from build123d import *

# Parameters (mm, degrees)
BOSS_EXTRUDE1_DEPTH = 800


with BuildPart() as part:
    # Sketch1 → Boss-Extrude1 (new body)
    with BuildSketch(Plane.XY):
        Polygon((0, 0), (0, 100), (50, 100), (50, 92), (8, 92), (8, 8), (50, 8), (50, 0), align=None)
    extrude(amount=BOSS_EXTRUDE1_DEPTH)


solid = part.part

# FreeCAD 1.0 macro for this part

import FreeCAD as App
import Part
import Sketcher

V = App.Vector

doc = App.newDocument("Part")
params = doc.addObject("Spreadsheet::Sheet", "Params")
for row, (alias, value) in enumerate([
    ("sketch1_width", "50 mm"),
    ("sketch1_width2", "42 mm"),
    ("sketch1_height", "100 mm"),
    ("sketch1_height2", "8 mm"),
    ("pad1_length", "800 mm"),
], start=1):
    params.set(f"A{row}", alias)
    params.set(f"B{row}", "=" + value)
    params.setAlias(f"B{row}", alias)

body = doc.addObject("PartDesign::Body", "Body")

sketch1 = body.newObject("Sketcher::SketchObject", "Sketch")
sketch1.AttachmentSupport = (doc.getObject("XY_Plane"), [""])
sketch1.MapMode = "FlatFace"
sketch1.addGeometry(Part.LineSegment(V(0, 100, 0), V(0, 0, 0)), False)
sketch1.addGeometry(Part.LineSegment(V(0, 0, 0), V(50, 0, 0)), False)
sketch1.addGeometry(Part.LineSegment(V(50, 0, 0), V(50, 8, 0)), False)
sketch1.addGeometry(Part.LineSegment(V(50, 8, 0), V(8, 8, 0)), False)
sketch1.addGeometry(Part.LineSegment(V(8, 8, 0), V(8, 92, 0)), False)
sketch1.addGeometry(Part.LineSegment(V(8, 92, 0), V(50, 92, 0)), False)
sketch1.addGeometry(Part.LineSegment(V(50, 92, 0), V(50, 100, 0)), False)
sketch1.addGeometry(Part.LineSegment(V(50, 100, 0), V(0, 100, 0)), False)
sketch1.addConstraint(Sketcher.Constraint("Coincident", 0, 2, 1, 1))
sketch1.addConstraint(Sketcher.Constraint("Coincident", 1, 2, 2, 1))
sketch1.addConstraint(Sketcher.Constraint("Coincident", 2, 2, 3, 1))
sketch1.addConstraint(Sketcher.Constraint("Coincident", 3, 2, 4, 1))
sketch1.addConstraint(Sketcher.Constraint("Coincident", 4, 2, 5, 1))
sketch1.addConstraint(Sketcher.Constraint("Coincident", 5, 2, 6, 1))
sketch1.addConstraint(Sketcher.Constraint("Coincident", 6, 2, 7, 1))
sketch1.addConstraint(Sketcher.Constraint("Coincident", 7, 2, 0, 1))
sketch1.addConstraint(Sketcher.Constraint("Vertical", 0))
sketch1.addConstraint(Sketcher.Constraint("Horizontal", 1))
sketch1.addConstraint(Sketcher.Constraint("Vertical", 2))
sketch1.addConstraint(Sketcher.Constraint("Horizontal", 3))
sketch1.addConstraint(Sketcher.Constraint("Vertical", 4))
sketch1.addConstraint(Sketcher.Constraint("Horizontal", 5))
sketch1.addConstraint(Sketcher.Constraint("Vertical", 6))
sketch1.addConstraint(Sketcher.Constraint("Horizontal", 7))
sketch1.addConstraint(Sketcher.Constraint("Coincident", 0, 2, -1, 1))
sketch1.addConstraint(Sketcher.Constraint("Vertical", 2, 2, 5, 2))
sketch1.addConstraint(Sketcher.Constraint("Equal", 2, 6))
sketch1.addConstraint(Sketcher.Constraint("DistanceX", 1, 1, 1, 2, 50.0))
sketch1.addConstraint(Sketcher.Constraint("DistanceX", 3, 2, 3, 1, 42.0))
sketch1.addConstraint(Sketcher.Constraint("DistanceY", 0, 2, 0, 1, 100.0))
sketch1.addConstraint(Sketcher.Constraint("DistanceY", 2, 1, 2, 2, 8.0))
sketch1.setExpression("Constraints[19]", "Params.sketch1_width")
sketch1.setExpression("Constraints[20]", "Params.sketch1_width2")
sketch1.setExpression("Constraints[21]", "Params.sketch1_height")
sketch1.setExpression("Constraints[22]", "Params.sketch1_height2")
pad1 = body.newObject("PartDesign::Pad", "Pad")
pad1.Profile = sketch1
pad1.setExpression("Length", "Params.pad1_length")

doc.recompute()
